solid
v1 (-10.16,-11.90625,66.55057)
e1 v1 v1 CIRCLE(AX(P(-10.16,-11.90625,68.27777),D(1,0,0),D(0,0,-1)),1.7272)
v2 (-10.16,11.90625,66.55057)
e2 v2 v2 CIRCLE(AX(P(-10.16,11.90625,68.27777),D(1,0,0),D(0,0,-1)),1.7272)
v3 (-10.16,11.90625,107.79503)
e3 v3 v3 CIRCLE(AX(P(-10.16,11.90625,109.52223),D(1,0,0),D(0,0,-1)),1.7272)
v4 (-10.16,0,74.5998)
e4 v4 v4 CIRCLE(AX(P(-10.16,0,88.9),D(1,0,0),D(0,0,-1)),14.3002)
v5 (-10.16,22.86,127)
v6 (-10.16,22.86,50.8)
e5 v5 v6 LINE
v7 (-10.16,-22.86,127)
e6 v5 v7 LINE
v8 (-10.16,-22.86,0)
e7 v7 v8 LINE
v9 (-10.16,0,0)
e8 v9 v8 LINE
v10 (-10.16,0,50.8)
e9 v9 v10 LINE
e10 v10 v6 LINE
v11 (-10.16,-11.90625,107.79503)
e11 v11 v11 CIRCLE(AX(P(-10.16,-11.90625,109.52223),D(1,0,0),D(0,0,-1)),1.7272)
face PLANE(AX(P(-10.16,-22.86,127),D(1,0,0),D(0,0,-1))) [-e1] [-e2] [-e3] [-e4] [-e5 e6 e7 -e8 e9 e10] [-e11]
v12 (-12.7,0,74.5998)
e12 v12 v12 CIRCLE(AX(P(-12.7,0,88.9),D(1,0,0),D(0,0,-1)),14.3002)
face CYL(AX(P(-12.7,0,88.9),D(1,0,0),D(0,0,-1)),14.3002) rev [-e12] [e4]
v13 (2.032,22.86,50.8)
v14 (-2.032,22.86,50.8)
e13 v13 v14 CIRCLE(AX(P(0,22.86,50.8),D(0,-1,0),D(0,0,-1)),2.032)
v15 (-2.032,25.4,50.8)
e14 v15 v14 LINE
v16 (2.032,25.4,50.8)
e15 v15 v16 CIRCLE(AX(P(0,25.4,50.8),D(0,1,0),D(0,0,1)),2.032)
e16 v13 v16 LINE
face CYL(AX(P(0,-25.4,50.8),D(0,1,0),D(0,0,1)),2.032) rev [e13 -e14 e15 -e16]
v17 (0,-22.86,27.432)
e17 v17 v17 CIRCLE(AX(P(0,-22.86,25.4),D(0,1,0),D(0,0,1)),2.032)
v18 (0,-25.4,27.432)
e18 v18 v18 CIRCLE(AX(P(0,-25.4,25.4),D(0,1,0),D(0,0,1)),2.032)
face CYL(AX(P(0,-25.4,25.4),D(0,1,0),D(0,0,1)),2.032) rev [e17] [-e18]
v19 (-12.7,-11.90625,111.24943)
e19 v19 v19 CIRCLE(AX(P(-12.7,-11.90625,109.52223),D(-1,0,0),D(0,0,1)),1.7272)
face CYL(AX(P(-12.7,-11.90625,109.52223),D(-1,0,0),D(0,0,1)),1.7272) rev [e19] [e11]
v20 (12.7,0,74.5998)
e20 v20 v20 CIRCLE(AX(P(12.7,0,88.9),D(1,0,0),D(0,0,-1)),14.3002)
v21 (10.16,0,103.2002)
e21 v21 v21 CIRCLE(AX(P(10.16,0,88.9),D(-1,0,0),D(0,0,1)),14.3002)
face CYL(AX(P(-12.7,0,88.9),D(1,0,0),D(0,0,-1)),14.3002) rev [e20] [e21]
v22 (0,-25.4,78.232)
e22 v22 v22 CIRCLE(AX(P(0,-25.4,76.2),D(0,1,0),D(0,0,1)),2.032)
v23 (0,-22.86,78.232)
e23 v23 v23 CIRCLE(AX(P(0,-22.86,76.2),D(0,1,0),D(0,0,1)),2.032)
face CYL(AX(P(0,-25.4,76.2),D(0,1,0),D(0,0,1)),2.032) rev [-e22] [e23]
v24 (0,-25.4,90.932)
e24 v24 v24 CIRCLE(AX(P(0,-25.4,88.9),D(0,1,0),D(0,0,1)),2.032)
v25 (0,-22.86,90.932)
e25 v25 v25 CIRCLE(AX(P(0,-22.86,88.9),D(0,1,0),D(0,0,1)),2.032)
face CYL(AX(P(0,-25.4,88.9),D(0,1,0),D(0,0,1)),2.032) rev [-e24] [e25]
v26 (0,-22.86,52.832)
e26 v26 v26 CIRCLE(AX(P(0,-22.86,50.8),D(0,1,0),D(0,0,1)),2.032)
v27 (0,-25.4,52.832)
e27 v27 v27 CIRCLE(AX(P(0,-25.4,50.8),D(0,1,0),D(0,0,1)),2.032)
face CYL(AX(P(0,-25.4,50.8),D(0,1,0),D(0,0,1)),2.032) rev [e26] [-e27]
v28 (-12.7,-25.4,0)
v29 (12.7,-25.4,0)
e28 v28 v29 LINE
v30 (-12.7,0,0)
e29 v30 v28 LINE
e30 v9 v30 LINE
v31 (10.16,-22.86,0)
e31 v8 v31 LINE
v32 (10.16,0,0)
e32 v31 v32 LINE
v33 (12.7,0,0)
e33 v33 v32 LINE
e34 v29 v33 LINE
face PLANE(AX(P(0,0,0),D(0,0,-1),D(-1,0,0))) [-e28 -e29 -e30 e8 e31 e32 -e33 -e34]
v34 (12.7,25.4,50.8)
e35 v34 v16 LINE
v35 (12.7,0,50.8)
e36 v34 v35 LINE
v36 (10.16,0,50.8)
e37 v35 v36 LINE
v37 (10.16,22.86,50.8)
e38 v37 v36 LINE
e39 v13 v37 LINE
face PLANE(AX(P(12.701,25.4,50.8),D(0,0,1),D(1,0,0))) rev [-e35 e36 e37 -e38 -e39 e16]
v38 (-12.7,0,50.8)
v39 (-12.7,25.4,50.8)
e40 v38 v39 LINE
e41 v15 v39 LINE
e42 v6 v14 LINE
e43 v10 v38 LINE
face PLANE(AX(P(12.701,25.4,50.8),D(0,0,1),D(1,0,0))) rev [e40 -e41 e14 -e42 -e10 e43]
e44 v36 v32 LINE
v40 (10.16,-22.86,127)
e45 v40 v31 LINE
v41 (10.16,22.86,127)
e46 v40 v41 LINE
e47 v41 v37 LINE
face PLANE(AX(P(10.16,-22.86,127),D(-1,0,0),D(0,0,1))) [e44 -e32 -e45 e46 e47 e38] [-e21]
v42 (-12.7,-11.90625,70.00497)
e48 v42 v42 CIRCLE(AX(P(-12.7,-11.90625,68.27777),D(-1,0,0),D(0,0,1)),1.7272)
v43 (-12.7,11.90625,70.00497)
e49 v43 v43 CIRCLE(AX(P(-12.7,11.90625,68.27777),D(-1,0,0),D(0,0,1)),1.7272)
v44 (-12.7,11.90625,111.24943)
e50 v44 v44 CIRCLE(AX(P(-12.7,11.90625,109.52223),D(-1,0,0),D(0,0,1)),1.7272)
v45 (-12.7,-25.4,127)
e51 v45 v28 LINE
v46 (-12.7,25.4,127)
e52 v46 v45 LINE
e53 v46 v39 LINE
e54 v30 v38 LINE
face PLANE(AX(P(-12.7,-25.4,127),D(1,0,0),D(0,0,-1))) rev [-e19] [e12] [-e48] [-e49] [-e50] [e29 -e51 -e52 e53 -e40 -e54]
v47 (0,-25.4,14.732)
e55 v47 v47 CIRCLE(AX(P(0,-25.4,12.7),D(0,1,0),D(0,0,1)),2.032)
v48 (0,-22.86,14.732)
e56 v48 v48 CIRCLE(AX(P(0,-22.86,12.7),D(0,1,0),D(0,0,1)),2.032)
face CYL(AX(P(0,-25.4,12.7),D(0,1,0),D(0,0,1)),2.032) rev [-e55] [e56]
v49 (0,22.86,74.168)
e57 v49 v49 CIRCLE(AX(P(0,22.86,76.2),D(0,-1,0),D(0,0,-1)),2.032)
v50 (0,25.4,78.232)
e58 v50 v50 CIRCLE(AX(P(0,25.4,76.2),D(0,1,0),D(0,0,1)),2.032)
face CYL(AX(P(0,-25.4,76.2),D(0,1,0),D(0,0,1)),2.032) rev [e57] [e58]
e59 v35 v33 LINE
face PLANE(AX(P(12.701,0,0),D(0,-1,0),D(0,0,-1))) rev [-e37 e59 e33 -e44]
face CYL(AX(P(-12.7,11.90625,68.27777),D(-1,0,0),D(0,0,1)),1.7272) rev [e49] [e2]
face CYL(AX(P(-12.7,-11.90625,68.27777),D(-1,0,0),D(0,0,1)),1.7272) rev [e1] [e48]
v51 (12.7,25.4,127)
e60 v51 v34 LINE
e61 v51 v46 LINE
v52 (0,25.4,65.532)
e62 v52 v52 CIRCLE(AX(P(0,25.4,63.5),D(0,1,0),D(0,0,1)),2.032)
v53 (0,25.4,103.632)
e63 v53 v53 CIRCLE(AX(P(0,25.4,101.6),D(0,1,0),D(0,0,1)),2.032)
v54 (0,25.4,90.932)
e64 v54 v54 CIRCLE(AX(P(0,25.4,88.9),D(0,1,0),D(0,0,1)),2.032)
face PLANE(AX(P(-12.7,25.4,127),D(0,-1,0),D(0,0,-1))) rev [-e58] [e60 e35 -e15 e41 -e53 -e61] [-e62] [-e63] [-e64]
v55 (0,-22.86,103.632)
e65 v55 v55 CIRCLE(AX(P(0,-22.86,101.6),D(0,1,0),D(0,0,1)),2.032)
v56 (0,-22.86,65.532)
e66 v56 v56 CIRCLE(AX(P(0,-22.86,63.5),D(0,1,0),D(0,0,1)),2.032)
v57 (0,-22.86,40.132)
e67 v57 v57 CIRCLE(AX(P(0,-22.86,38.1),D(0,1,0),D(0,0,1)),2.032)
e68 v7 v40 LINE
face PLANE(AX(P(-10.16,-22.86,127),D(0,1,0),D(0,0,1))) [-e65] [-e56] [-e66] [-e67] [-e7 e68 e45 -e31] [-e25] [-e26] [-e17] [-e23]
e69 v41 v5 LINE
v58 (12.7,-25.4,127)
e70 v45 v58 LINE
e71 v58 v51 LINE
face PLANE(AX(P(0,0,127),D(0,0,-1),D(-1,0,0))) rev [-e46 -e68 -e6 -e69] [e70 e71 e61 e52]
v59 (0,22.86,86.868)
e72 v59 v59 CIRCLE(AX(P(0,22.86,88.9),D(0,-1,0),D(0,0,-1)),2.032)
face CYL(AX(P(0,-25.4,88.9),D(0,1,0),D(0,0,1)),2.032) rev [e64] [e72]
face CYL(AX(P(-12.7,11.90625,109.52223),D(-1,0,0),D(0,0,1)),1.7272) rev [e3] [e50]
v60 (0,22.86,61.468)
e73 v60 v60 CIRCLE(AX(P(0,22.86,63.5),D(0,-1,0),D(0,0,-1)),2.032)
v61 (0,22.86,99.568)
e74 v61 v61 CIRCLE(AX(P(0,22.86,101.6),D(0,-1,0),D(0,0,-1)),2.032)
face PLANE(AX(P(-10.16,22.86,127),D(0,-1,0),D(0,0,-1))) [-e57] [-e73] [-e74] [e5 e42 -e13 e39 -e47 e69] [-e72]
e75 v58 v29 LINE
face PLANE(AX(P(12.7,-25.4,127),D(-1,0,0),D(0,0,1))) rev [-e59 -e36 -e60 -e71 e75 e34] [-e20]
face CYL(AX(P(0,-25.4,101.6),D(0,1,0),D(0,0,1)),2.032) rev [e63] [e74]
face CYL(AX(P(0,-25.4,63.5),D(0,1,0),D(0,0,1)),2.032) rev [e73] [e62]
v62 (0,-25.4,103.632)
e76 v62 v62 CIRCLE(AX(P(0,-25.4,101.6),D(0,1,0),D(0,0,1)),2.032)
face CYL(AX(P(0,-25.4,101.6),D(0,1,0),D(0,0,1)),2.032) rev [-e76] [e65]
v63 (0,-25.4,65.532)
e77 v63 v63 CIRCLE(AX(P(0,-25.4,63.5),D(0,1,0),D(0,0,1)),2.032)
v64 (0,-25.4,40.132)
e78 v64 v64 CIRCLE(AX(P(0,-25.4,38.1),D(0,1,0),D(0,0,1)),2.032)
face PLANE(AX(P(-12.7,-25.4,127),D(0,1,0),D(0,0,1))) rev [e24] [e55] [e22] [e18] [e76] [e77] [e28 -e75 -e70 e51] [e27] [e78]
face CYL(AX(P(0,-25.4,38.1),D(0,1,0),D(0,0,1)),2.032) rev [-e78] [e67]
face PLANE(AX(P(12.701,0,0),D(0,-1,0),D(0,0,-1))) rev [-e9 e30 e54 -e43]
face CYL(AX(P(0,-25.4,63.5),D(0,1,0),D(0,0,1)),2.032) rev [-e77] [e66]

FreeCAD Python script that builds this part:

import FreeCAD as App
import Part
import Sketcher

V = App.Vector
Q = App.Units.Quantity

doc = App.newDocument("Part")
body = doc.addObject("PartDesign::Body", "Body")

# Sketch on XY plane
sketch1 = body.newObject("Sketcher::SketchObject", "Sketch")
sketch1.AttachmentSupport = (doc.getObject("XY_Plane"), [""])
sketch1.MapMode = "FlatFace"
sketch1.addGeometry([
    Part.LineSegment(V(-12.7, 25.4, 0), V(-12.7, -25.4, 0)),  # 0
    Part.LineSegment(V(-12.7, -25.4, 0), V(12.7, -25.4, 0)),  # 1
    Part.LineSegment(V(12.7, -25.4, 0), V(12.7, 25.4, 0)),  # 2
    Part.LineSegment(V(12.7, 25.4, 0), V(-12.7, 25.4, 0)),  # 3
    Part.LineSegment(V(10.16, -22.86, 0), V(-10.16, -22.86, 0)),  # 4
    Part.LineSegment(V(-10.16, -22.86, 0), V(-10.16, 22.86, 0)),  # 5
    Part.LineSegment(V(-10.16, 22.86, 0), V(10.16, 22.86, 0)),  # 6
    Part.LineSegment(V(10.16, 22.86, 0), V(10.16, -22.86, 0)),  # 7
], False)
sketch1.addConstraint([
    Sketcher.Constraint("Coincident", 0, 2, 1, 1),
    Sketcher.Constraint("Coincident", 1, 2, 2, 1),
    Sketcher.Constraint("Coincident", 2, 2, 3, 1),
    Sketcher.Constraint("Coincident", 3, 2, 0, 1),
    Sketcher.Constraint("Coincident", 4, 2, 5, 1),
    Sketcher.Constraint("Coincident", 5, 2, 6, 1),
    Sketcher.Constraint("Coincident", 6, 2, 7, 1),
    Sketcher.Constraint("Coincident", 7, 2, 4, 1),
    Sketcher.Constraint("Vertical", 0),
    Sketcher.Constraint("Horizontal", 1),
    Sketcher.Constraint("Vertical", 2),
    Sketcher.Constraint("Horizontal", 3),
    Sketcher.Constraint("Horizontal", 4),
    Sketcher.Constraint("Vertical", 5),
    Sketcher.Constraint("Horizontal", 6),
    Sketcher.Constraint("Vertical", 7),
    Sketcher.Constraint("Symmetric", 0, 2, 2, 2, -1, 1),
    Sketcher.Constraint("Symmetric", 4, 2, 6, 2, -1, 1),
    Sketcher.Constraint("DistanceX", 1, 1, 1, 2, Q("1 in")),
    Sketcher.Constraint("DistanceY", 0, 2, 0, 1, Q("2 in")),
    Sketcher.Constraint("DistanceX", 4, 2, 4, 1, Q("0.8 in")),
    Sketcher.Constraint("DistanceY", 5, 1, 5, 2, Q("1.8 in")),
])
pad1 = body.newObject("PartDesign::Pad", "Pad")
pad1.Profile = sketch1
pad1.Length = Q("5 in")

# Sketch on XZ plane
sketch2 = body.newObject("Sketcher::SketchObject", "Sketch001")
sketch2.AttachmentSupport = (doc.getObject("XZ_Plane"), [""])
sketch2.MapMode = "FlatFace"
sketch2.AttachmentOffset = App.Placement(V(0, 0, -1 * 25.4), App.Rotation())
sketch2.addGeometry([
    Part.Circle(V(0, 12.7, 0), V(0, 0, 1), 2.032),  # 0
    Part.Circle(V(0, 25.4, 0), V(0, 0, 1), 2.032),  # 1
    Part.Circle(V(0, 38.1, 0), V(0, 0, 1), 2.032),  # 2
    Part.Circle(V(0, 50.8, 0), V(0, 0, 1), 2.032),  # 3
    Part.Circle(V(0, 63.5, 0), V(0, 0, 1), 2.032),  # 4
    Part.Circle(V(0, 76.2, 0), V(0, 0, 1), 2.032),  # 5
    Part.Circle(V(0, 88.9, 0), V(0, 0, 1), 2.032),  # 6
    Part.Circle(V(0, 101.6, 0), V(0, 0, 1), 2.032),  # 7
], False)
sketch2.addConstraint([
    Sketcher.Constraint("Equal", 0, 1),
    Sketcher.Constraint("Equal", 1, 2),
    Sketcher.Constraint("Equal", 2, 3),
    Sketcher.Constraint("Equal", 3, 4),
    Sketcher.Constraint("Equal", 4, 5),
    Sketcher.Constraint("Equal", 5, 6),
    Sketcher.Constraint("Equal", 6, 7),
    Sketcher.Constraint("PointOnObject", 0, 3, -2),
    Sketcher.Constraint("PointOnObject", 1, 3, -2),
    Sketcher.Constraint("PointOnObject", 2, 3, -2),
    Sketcher.Constraint("PointOnObject", 3, 3, -2),
    Sketcher.Constraint("PointOnObject", 4, 3, -2),
    Sketcher.Constraint("PointOnObject", 5, 3, -2),
    Sketcher.Constraint("PointOnObject", 6, 3, -2),
    Sketcher.Constraint("PointOnObject", 7, 3, -2),
    Sketcher.Constraint("Diameter", 0, Q("0.16 in")),
    Sketcher.Constraint("DistanceY", -1, 1, 1, 3, Q("1 in")),
    Sketcher.Constraint("DistanceY", -1, 1, 3, 3, Q("2 in")),
    Sketcher.Constraint("DistanceY", -1, 1, 5, 3, Q("3 in")),
    Sketcher.Constraint("DistanceY", -1, 1, 7, 3, Q("4 in")),
    Sketcher.Constraint("DistanceY", 0, 3, 2, 3, Q("1 in")),
    Sketcher.Constraint("DistanceY", 2, 3, 4, 3, Q("1 in")),
    Sketcher.Constraint("DistanceY", 4, 3, 6, 3, Q("1 in")),
    Sketcher.Constraint("DistanceY", -1, 1, 0, 3, Q("0.5 in")),
])
pocket1 = body.newObject("PartDesign::Pocket", "Pocket")
pocket1.Profile = sketch2
pocket1.Type = "ThroughAll"
pocket1.Reversed = True

# Sketch on YZ plane
sketch3 = body.newObject("Sketcher::SketchObject", "Sketch002")
sketch3.AttachmentSupport = (doc.getObject("YZ_Plane"), [""])
sketch3.MapMode = "FlatFace"
sketch3.AttachmentOffset = App.Placement(V(0, 0, 0.5 * 25.4), App.Rotation())
sketch3.addGeometry(Part.Circle(V(0, 88.9, 0), V(0, 0, 1), 14.3002), False)
sketch3.addConstraint([
    Sketcher.Constraint("PointOnObject", 0, 3, -2),
    Sketcher.Constraint("Diameter", 0, Q("1.126 in")),
    Sketcher.Constraint("DistanceY", -1, 1, 0, 3, Q("3.5 in")),
])
pocket2 = body.newObject("PartDesign::Pocket", "Pocket001")
pocket2.Profile = sketch3
pocket2.Type = "ThroughAll"

# Sketch on YZ plane
sketch4 = body.newObject("Sketcher::SketchObject", "Sketch003")
sketch4.AttachmentSupport = (doc.getObject("YZ_Plane"), [""])
sketch4.MapMode = "FlatFace"
sketch4.AttachmentOffset = App.Placement(V(0, 0, -0.5 * 25.4), App.Rotation())
sketch4.addGeometry([
    Part.LineSegment(V(25.4, 0, 0), V(0, 0, 0)),
    Part.LineSegment(V(0, 0, 0), V(0, 50.8, 0)),
    Part.LineSegment(V(0, 50.8, 0), V(25.4, 50.8, 0)),
    Part.LineSegment(V(25.4, 50.8, 0), V(25.4, 0, 0)),
], False)
sketch4.addConstraint([
    Sketcher.Constraint("Coincident", 0, 2, 1, 1),
    Sketcher.Constraint("Coincident", 1, 2, 2, 1),
    Sketcher.Constraint("Coincident", 2, 2, 3, 1),
    Sketcher.Constraint("Coincident", 3, 2, 0, 1),
    Sketcher.Constraint("Horizontal", 0),
    Sketcher.Constraint("Vertical", 1),
    Sketcher.Constraint("Horizontal", 2),
    Sketcher.Constraint("Vertical", 3),
    Sketcher.Constraint("Coincident", 0, 2, -1, 1),
    Sketcher.Constraint("DistanceX", 0, 2, 0, 1, Q("1 in")),
    Sketcher.Constraint("DistanceY", 1, 1, 1, 2, Q("2 in")),
])
pocket3 = body.newObject("PartDesign::Pocket", "Pocket002")
pocket3.Profile = sketch4
pocket3.Length = Q("1 in")
pocket3.Reversed = True

# Sketch on YZ plane
sketch5 = body.newObject("Sketcher::SketchObject", "Sketch004")
sketch5.AttachmentSupport = (doc.getObject("YZ_Plane"), [""])
sketch5.MapMode = "FlatFace"
sketch5.AttachmentOffset = App.Placement(V(0, 0, -0.5 * 25.4), App.Rotation())
sketch5.addGeometry([
    Part.Circle(V(11.90625, 109.52223, 0), V(0, 0, 1), 1.7272),
    Part.Circle(V(-11.90625, 109.52223, 0), V(0, 0, 1), 1.7272),
    Part.Circle(V(-11.90625, 68.27777, 0), V(0, 0, 1), 1.7272),
    Part.Circle(V(11.90625, 68.27777, 0), V(0, 0, 1), 1.7272),
], False)
sketch5.addConstraint([
    Sketcher.Constraint("Equal", 0, 1),
    Sketcher.Constraint("Equal", 1, 2),
    Sketcher.Constraint("Equal", 2, 3),
    Sketcher.Constraint("Symmetric", 0, 3, 1, 3, -2),
    Sketcher.Constraint("Symmetric", 2, 3, 3, 3, -2),
    Sketcher.Constraint("Vertical", 1, 3, 2, 3),
    Sketcher.Constraint("Diameter", 0, Q("0.136 in")),
    Sketcher.Constraint("DistanceX", -1, 1, 0, 3, Q("0.46875 in")),
    Sketcher.Constraint("DistanceY", -1, 1, 0, 3, 109.52223),
    Sketcher.Constraint("DistanceY", -1, 1, 2, 3, 68.27777),
])
doc.recompute()
hole = body.newObject("PartDesign::Hole", "Hole")
hole.Profile = sketch5
hole.ThreadType = "None"
hole.Diameter = Q("0.136 in")
hole.DepthType = "Dimension"
hole.Depth = Q("0.1 in")
hole.DrillPoint = "Flat"
hole.Reversed = True

doc.recompute()
